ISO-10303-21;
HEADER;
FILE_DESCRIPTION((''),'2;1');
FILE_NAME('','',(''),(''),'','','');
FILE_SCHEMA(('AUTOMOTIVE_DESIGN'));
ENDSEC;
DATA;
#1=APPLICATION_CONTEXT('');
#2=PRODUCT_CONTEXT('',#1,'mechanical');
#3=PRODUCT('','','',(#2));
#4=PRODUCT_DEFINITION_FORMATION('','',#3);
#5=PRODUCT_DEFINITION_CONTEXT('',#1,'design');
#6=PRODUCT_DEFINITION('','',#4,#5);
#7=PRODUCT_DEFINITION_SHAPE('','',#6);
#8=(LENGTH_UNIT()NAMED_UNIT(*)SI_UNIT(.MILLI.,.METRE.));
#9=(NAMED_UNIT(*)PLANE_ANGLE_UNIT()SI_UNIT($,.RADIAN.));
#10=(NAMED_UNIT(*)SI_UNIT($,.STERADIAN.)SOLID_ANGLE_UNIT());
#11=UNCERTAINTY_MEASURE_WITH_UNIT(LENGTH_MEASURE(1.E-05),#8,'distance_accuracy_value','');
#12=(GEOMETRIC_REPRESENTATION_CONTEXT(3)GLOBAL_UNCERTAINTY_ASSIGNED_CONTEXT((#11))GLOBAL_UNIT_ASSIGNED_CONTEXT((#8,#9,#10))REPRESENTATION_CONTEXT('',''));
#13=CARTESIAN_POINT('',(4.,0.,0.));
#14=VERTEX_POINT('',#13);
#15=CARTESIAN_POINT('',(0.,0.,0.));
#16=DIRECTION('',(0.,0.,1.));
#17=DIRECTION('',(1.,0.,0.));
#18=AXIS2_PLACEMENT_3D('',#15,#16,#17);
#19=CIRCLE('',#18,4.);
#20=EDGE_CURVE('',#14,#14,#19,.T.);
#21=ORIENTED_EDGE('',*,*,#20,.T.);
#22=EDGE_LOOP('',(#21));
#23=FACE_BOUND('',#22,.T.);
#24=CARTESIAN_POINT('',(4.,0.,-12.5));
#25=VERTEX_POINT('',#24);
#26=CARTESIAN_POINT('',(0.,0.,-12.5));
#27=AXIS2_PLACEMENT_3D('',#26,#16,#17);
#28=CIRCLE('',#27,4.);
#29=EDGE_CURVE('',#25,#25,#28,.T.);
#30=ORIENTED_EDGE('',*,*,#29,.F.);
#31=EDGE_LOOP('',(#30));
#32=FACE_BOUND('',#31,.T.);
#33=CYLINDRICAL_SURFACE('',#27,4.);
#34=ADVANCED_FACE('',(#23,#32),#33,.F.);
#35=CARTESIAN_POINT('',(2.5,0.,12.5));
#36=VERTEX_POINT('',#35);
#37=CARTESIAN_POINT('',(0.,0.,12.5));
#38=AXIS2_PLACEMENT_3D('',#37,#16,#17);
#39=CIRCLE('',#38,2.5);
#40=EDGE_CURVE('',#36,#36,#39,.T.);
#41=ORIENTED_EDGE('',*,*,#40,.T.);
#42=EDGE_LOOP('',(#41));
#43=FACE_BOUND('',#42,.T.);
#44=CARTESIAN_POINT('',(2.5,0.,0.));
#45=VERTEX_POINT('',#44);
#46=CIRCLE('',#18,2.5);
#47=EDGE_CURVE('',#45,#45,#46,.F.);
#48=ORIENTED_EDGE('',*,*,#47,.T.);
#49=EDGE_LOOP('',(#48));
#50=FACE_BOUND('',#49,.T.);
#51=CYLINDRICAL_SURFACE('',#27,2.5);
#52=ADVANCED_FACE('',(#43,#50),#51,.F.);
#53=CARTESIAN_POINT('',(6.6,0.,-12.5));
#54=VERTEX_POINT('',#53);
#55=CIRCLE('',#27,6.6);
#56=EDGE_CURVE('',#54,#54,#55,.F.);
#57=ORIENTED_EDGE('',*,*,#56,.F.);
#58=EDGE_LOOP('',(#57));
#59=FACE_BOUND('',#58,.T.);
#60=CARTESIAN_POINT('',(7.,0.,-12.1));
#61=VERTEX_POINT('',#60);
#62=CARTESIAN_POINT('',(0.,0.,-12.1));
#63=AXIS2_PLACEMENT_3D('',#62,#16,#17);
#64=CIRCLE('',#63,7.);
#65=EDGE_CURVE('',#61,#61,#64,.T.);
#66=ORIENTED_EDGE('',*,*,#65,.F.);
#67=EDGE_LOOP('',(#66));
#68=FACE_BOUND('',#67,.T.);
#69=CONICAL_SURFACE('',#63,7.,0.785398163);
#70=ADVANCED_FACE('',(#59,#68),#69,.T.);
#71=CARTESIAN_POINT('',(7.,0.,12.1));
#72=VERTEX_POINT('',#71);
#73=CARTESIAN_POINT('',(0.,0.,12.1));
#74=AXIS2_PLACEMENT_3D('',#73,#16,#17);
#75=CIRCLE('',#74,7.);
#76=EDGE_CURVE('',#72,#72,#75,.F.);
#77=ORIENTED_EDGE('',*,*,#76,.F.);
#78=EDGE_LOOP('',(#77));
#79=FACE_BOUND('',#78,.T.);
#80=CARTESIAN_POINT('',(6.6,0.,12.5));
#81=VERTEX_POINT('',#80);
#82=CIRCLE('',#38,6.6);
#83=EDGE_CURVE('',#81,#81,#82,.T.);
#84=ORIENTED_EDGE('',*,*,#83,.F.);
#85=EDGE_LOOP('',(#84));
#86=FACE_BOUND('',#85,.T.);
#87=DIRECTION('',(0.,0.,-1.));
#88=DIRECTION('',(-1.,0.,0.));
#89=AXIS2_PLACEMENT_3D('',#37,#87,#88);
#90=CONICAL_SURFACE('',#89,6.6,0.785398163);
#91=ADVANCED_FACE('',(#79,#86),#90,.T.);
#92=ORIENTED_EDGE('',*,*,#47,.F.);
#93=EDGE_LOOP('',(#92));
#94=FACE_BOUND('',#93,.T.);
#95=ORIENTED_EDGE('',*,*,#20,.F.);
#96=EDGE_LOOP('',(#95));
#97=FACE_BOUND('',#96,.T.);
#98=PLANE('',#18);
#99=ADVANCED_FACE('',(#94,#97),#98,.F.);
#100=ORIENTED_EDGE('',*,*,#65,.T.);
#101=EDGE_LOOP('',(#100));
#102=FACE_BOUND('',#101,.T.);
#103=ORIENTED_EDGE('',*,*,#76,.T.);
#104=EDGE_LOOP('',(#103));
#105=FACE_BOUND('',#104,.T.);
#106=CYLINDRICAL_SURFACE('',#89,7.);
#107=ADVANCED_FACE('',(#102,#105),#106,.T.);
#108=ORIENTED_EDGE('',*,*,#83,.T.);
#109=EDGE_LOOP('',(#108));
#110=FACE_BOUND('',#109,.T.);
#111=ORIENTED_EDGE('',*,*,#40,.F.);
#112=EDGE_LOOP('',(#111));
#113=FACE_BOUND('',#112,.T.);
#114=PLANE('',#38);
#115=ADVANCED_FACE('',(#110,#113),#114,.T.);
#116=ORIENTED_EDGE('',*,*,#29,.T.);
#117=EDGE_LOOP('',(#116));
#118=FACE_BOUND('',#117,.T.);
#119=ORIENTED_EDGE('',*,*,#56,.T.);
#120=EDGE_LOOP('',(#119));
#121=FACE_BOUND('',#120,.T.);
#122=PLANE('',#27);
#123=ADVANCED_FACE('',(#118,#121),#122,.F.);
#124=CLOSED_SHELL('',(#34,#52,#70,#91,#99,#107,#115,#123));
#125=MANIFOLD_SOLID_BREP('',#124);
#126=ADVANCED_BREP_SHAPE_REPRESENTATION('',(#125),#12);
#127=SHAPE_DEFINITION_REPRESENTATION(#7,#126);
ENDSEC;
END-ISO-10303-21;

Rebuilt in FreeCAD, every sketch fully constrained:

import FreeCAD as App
import Part
import Sketcher
from FreeCAD import Vector


def edges_at(feature, points):
    """Names of the edges that pass closest to the given points."""
    edges = feature.Shape.Edges
    near = lambda p: min(range(len(edges)), key=lambda i: edges[i].distToShape(Part.Vertex(*p))[0])
    return sorted({f"Edge{near(p) + 1}" for p in points})

doc = App.newDocument("Part")
body = doc.addObject("PartDesign::Body", "Body")

sketch1 = body.newObject("Sketcher::SketchObject", "Sketch")
sketch1.AttachmentSupport = (doc.getObject("XY_Plane"), [""])
sketch1.MapMode = "FlatFace"
sketch1.addGeometry(Part.Circle(Vector(0, 0, 0), Vector(0, 0, 1), 7), False)
sketch1.addConstraint(Sketcher.Constraint("Coincident", 0, 3, -1, 1))
sketch1.addConstraint(Sketcher.Constraint("Diameter", 0, 14.0))
pad1 = body.newObject("PartDesign::Pad", "Pad")
pad1.Profile = sketch1
pad1.Length = 25
pad1.Midplane = True

sketch2 = body.newObject("Sketcher::SketchObject", "Sketch001")
sketch2.AttachmentSupport = (doc.getObject("XY_Plane"), [""])
sketch2.MapMode = "FlatFace"
sketch2.AttachmentOffset = App.Placement(Vector(0, 0, 12.5), App.Rotation())
sketch2.addGeometry(Part.Circle(Vector(0, 0, 0), Vector(0, 0, 1), 2.5), False)
sketch2.addConstraint(Sketcher.Constraint("Coincident", 0, 3, -1, 1))
sketch2.addConstraint(Sketcher.Constraint("Diameter", 0, 5.0))
pocket1 = body.newObject("PartDesign::Pocket", "Pocket")
pocket1.Profile = sketch2
pocket1.Type = "ThroughAll"

sketch3 = body.newObject("Sketcher::SketchObject", "Sketch002")
sketch3.AttachmentSupport = (doc.getObject("XY_Plane"), [""])
sketch3.MapMode = "FlatFace"
sketch3.addGeometry(Part.Circle(Vector(0, 0, 0), Vector(0, 0, 1), 4), False)
sketch3.addConstraint(Sketcher.Constraint("Coincident", 0, 3, -1, 1))
sketch3.addConstraint(Sketcher.Constraint("Diameter", 0, 8.0))
pocket2 = body.newObject("PartDesign::Pocket", "Pocket001")
pocket2.Profile = sketch3
pocket2.Type = "ThroughAll"
doc.recompute()

chamfer = body.newObject("PartDesign::Chamfer", "Chamfer")
chamfer.Base = (pocket2, edges_at(pocket2, [(-7, 0, -12.5), (-7, 0, 12.5)]))
chamfer.Size = 0.4

doc.recompute()
